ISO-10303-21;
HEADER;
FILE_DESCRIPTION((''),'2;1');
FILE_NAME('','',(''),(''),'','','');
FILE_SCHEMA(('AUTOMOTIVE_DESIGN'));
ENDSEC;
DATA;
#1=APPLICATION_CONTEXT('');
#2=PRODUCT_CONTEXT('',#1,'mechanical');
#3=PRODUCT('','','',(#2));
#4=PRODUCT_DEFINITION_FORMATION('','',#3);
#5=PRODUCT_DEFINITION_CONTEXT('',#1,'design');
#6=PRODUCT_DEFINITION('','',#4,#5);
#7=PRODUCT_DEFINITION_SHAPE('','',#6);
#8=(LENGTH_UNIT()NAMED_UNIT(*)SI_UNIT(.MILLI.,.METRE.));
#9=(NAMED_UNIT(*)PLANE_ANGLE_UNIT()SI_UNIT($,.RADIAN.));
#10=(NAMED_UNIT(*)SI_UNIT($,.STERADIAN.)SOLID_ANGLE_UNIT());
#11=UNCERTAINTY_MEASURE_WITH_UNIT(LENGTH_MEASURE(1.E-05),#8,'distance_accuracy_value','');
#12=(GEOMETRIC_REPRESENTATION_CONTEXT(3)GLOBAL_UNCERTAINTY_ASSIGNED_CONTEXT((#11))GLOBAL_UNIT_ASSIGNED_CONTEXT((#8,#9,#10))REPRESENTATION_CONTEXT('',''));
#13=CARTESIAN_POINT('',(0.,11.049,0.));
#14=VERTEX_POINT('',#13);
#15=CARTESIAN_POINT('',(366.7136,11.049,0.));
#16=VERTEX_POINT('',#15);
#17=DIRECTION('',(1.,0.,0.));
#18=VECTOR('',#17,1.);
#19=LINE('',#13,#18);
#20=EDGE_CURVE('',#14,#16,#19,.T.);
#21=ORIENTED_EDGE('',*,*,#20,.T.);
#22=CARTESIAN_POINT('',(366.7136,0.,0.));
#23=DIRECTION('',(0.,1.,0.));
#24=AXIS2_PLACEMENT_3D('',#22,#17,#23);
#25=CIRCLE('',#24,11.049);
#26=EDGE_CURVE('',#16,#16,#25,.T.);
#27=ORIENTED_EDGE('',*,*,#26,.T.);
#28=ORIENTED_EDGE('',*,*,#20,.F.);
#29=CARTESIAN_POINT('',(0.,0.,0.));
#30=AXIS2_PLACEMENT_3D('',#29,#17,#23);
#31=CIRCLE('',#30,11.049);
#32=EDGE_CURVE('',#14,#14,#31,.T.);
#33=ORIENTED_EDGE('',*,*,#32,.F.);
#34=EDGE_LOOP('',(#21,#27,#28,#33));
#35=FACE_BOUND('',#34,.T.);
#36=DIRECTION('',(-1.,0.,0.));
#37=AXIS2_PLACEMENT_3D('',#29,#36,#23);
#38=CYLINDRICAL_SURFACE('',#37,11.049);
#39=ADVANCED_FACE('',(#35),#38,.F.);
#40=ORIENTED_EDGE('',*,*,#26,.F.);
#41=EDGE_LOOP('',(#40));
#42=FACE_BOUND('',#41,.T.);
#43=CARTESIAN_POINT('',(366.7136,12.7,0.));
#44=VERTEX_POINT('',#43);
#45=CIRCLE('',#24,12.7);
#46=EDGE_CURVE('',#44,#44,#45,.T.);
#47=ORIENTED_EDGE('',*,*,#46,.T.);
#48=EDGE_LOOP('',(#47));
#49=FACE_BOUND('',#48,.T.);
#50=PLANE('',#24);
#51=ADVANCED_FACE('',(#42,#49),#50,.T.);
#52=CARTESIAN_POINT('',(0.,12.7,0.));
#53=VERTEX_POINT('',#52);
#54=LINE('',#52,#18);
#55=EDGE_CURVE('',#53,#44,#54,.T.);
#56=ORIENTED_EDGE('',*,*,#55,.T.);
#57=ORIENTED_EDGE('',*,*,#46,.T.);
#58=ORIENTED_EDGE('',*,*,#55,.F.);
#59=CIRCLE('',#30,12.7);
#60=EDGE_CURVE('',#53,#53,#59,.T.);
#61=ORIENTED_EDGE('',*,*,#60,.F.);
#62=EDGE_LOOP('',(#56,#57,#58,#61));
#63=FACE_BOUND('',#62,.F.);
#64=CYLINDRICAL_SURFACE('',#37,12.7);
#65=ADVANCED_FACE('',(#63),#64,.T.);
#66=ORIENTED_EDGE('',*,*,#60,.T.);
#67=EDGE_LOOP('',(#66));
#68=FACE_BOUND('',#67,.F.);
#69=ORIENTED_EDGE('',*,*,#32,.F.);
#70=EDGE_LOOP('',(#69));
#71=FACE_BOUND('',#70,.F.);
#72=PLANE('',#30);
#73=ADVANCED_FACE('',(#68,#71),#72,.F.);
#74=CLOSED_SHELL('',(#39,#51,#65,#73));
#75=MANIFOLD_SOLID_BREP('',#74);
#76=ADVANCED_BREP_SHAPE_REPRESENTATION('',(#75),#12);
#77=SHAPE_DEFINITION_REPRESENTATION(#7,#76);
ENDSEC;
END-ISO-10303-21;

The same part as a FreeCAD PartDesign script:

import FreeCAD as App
import Part
import Sketcher
from FreeCAD import Vector
Q = App.Units.Quantity

doc = App.newDocument("Part")
params = doc.addObject("Spreadsheet::Sheet", "Params")
for row, (alias, value) in enumerate([
    ("sketch1_diameter", "1 in"),
    ("sketch1_diameter2", "0.87 in"),
    ("pad1_length", "366.7136 mm"),
], start=1):
    params.set(f"A{row}", alias)
    params.set(f"B{row}", "=" + value)
    params.setAlias(f"B{row}", alias)

body = doc.addObject("PartDesign::Body", "Body")

sketch1 = body.newObject("Sketcher::SketchObject", "Sketch")
sketch1.AttachmentSupport = (doc.getObject("YZ_Plane"), [""])
sketch1.MapMode = "FlatFace"
sketch1.addGeometry(Part.Circle(Vector(0, 0, 0), Vector(0, 0, 1), 13), False)
sketch1.addGeometry(Part.Circle(Vector(0, 0, 0), Vector(0, 0, 1), 11), False)
sketch1.addConstraint(Sketcher.Constraint("Coincident", 0, 3, -1, 1))
sketch1.addConstraint(Sketcher.Constraint("Coincident", 1, 3, -1, 1))
sketch1.addConstraint(Sketcher.Constraint("Diameter", 0, Q("1 in")))
sketch1.addConstraint(Sketcher.Constraint("Diameter", 1, Q("0.87 in")))
sketch1.setExpression("Constraints[2]", "Params.sketch1_diameter")
sketch1.setExpression("Constraints[3]", "Params.sketch1_diameter2")
pad1 = body.newObject("PartDesign::Pad", "Pad")
pad1.Profile = sketch1
pad1.setExpression("Length", "Params.pad1_length")

doc.recompute()
